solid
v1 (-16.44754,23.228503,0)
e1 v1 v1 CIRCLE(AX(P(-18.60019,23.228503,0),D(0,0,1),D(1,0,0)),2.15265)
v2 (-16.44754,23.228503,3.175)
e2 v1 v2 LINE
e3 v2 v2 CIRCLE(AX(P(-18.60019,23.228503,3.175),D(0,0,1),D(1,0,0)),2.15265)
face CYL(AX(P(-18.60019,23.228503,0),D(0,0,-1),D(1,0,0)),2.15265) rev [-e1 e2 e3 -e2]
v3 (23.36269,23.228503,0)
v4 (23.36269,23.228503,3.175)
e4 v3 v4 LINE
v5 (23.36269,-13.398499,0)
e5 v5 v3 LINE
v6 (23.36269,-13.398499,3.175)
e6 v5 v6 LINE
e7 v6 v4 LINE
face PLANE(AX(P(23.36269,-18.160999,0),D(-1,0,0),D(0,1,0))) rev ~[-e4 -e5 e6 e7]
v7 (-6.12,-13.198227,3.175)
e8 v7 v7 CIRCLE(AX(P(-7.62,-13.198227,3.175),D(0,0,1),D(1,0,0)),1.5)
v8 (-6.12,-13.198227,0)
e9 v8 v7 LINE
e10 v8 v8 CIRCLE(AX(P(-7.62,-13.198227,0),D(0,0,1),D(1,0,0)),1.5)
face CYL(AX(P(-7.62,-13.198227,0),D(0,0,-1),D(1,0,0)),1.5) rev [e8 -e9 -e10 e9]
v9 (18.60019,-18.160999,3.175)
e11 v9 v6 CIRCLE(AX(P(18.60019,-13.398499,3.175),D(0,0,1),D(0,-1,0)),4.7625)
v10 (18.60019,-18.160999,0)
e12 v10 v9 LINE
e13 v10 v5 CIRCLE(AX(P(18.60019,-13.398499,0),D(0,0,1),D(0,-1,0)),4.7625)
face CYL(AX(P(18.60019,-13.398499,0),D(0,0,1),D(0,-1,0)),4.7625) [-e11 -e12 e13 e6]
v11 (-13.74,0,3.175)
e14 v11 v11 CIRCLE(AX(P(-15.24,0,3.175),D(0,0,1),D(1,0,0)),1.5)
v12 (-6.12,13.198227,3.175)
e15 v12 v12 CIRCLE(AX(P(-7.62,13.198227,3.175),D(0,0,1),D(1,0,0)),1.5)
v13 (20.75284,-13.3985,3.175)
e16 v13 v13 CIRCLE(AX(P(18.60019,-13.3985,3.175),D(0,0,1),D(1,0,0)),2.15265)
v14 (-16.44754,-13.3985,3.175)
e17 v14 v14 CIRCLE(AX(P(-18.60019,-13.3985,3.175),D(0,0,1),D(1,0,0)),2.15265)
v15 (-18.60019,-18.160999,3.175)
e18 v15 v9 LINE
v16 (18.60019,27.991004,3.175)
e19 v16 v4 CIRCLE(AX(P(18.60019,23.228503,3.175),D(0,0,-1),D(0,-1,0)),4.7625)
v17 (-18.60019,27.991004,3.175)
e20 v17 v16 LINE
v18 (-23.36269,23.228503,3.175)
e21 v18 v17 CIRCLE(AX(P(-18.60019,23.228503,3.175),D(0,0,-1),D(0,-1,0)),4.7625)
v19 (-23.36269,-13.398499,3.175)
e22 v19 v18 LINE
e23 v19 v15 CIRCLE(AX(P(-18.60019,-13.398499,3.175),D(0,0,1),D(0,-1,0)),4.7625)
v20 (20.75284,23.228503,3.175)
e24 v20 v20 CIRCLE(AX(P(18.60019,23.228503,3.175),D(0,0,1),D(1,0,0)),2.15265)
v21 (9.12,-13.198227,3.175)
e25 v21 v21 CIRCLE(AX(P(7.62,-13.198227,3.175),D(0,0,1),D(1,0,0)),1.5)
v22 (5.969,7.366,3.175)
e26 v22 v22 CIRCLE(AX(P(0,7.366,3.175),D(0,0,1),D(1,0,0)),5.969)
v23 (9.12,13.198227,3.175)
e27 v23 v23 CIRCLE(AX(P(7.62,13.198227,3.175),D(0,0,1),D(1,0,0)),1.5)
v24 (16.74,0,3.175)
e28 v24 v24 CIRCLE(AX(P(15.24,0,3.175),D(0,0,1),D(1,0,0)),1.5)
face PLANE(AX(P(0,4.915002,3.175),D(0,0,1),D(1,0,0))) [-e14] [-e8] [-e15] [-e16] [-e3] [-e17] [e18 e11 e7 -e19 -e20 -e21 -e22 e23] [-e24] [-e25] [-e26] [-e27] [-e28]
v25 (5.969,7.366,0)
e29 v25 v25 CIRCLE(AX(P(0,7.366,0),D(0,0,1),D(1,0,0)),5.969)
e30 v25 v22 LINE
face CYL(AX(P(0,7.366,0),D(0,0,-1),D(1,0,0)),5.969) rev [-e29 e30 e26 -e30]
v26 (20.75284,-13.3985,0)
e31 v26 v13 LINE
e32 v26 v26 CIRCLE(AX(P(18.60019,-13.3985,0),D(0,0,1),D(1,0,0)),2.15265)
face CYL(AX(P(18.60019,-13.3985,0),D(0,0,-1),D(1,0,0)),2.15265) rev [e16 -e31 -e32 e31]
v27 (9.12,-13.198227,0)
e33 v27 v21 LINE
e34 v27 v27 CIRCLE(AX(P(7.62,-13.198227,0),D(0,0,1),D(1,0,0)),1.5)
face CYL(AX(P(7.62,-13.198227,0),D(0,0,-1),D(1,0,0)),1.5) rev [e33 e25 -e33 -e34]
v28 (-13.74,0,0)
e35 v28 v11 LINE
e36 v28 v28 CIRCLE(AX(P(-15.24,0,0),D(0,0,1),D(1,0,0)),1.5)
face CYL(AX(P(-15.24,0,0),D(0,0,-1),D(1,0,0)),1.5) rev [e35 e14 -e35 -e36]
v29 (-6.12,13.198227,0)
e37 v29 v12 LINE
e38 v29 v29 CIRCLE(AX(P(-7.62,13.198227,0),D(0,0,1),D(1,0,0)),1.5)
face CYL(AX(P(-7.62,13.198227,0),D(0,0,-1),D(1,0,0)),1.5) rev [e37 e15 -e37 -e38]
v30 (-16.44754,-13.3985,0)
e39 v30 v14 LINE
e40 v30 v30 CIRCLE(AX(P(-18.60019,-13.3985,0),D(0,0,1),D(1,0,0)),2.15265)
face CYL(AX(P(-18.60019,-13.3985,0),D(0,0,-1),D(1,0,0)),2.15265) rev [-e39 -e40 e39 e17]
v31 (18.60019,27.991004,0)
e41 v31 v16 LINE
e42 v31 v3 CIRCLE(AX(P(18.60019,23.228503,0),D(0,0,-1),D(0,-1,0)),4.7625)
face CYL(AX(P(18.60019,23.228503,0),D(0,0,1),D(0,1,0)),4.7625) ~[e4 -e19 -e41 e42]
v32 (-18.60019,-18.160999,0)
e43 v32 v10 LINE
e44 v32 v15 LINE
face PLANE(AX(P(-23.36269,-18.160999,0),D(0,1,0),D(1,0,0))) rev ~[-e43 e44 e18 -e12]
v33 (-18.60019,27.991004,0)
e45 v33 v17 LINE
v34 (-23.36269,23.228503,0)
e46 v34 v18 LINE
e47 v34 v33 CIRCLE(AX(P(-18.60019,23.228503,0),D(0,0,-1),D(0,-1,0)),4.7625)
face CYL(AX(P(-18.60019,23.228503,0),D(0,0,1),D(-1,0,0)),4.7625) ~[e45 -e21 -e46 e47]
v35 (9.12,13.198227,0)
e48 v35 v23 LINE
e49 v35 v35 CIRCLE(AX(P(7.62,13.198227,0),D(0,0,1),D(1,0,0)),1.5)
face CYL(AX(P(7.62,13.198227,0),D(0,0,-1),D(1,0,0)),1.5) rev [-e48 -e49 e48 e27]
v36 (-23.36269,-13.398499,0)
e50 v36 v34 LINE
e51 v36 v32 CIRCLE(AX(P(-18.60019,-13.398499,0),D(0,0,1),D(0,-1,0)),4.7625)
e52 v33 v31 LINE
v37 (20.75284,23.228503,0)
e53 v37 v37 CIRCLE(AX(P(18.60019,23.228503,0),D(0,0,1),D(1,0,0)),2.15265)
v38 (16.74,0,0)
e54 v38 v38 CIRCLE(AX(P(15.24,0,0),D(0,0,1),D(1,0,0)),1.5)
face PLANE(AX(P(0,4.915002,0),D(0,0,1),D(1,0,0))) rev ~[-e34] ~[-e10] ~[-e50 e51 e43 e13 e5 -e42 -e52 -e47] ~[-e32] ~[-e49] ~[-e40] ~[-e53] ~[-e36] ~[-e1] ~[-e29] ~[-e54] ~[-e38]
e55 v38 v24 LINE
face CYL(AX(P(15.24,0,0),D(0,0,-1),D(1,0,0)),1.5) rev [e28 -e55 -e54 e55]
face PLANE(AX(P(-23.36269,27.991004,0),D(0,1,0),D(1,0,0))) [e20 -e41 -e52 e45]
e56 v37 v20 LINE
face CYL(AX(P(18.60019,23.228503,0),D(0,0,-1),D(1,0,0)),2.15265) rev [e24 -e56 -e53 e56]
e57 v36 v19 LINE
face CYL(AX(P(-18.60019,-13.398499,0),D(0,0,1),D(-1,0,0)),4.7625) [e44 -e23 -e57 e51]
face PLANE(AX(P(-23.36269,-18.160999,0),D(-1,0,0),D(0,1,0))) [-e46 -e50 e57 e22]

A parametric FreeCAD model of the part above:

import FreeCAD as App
import Part
import Sketcher

V = App.Vector
Q = App.Units.Quantity


def edges_at(feature, points):
    """Names of the edges that pass closest to the given points."""
    edges = feature.Shape.Edges
    near = lambda p: min(range(len(edges)), key=lambda i: edges[i].distToShape(Part.Vertex(*p))[0])
    return sorted({f"Edge{near(p) + 1}" for p in points})

doc = App.newDocument("Part")
params = doc.addObject("Spreadsheet::Sheet", "Params")
for row, (alias, value) in enumerate([
    ("sketch1_diameter", "0.47 in"),
    ("pad1_length", "0.125 in"),
    ("fillet_radius", "0.1875 in"),
], start=1):
    params.set(f"A{row}", alias)
    params.set(f"B{row}", "=" + value)
    params.setAlias(f"B{row}", alias)

body = doc.addObject("PartDesign::Body", "Body")

sketch1 = body.newObject("Sketcher::SketchObject", "Sketch")
sketch1.AttachmentSupport = (doc.getObject("XY_Plane"), [""])
sketch1.MapMode = "FlatFace"
sketch1.addGeometry([
    Part.LineSegment(V(-23.4, 28, 0), V(-23.4, -18.2, 0)),
    Part.LineSegment(V(-23.4, -18.2, 0), V(23.4, -18.2, 0)),
    Part.LineSegment(V(23.4, -18.2, 0), V(23.4, 28, 0)),
    Part.LineSegment(V(23.4, 28, 0), V(-23.4, 28, 0)),
    Part.Circle(V(-18.6, -13.4, 0), V(0, 0, 1), 2.2),
    Part.Circle(V(-7.6, -13.2, 0), V(0, 0, 1), 1.5),
    Part.Circle(V(-15.2, 0, 0), V(0, 0, 1), 1.5),
    Part.Circle(V(7.6, -13.2, 0), V(0, 0, 1), 1.5),
    Part.Circle(V(18.6, -13.4, 0), V(0, 0, 1), 2.2),
    Part.Circle(V(15.2, 0, 0), V(0, 0, 1), 1.5),
    Part.Circle(V(-7.6, 13.2, 0), V(0, 0, 1), 1.5),
    Part.Circle(V(-18.6, 23.2, 0), V(0, 0, 1), 2.2),
    Part.Circle(V(0, 7.4, 0), V(0, 0, 1), 6),
    Part.Circle(V(7.6, 13.2, 0), V(0, 0, 1), 1.5),
    Part.Circle(V(18.6, 23.2, 0), V(0, 0, 1), 2.2),
], False)
sketch1.addConstraint([
    Sketcher.Constraint("Coincident", 0, 2, 1, 1),
    Sketcher.Constraint("Coincident", 1, 2, 2, 1),
    Sketcher.Constraint("Coincident", 2, 2, 3, 1),
    Sketcher.Constraint("Coincident", 3, 2, 0, 1),
    Sketcher.Constraint("Vertical", 0),
    Sketcher.Constraint("Horizontal", 1),
    Sketcher.Constraint("Vertical", 2),
    Sketcher.Constraint("Horizontal", 3),
    Sketcher.Constraint("Equal", 5, 6),
    Sketcher.Constraint("Equal", 6, 7),
    Sketcher.Constraint("Equal", 4, 8),
    Sketcher.Constraint("Equal", 7, 9),
    Sketcher.Constraint("Equal", 9, 10),
    Sketcher.Constraint("Equal", 8, 11),
    Sketcher.Constraint("Equal", 10, 13),
    Sketcher.Constraint("Equal", 11, 14),
    Sketcher.Constraint("Symmetric", 6, 3, 9, 3, -1, 1),
    Sketcher.Constraint("Symmetric", 7, 3, 10, 3, -1, 1),
    Sketcher.Constraint("Symmetric", 5, 3, 13, 3, -1, 1),
    Sketcher.Constraint("Symmetric", 5, 3, 7, 3, -2),
    Sketcher.Constraint("Symmetric", 4, 3, 8, 3, -2),
    Sketcher.Constraint("Symmetric", 11, 3, 14, 3, -2),
    Sketcher.Constraint("PointOnObject", 6, 3, -1),
    Sketcher.Constraint("PointOnObject", 12, 3, -2),
    Sketcher.Constraint("Vertical", 4, 3, 11, 3),
    Sketcher.Constraint("Diameter", 12, Q("0.47 in")),
    Sketcher.Constraint("Diameter", 4, Q("0.1695 in")),
    Sketcher.Constraint("DistanceX", 5, 3, -1, 1, Q("0.3 in")),
    Sketcher.Constraint("DistanceX", 6, 3, -1, 1, Q("0.6 in")),
    Sketcher.Constraint("Diameter", 5, Q("3 mm")),
    Sketcher.Constraint("DistanceY", -1, 1, 12, 3, Q("0.29 in")),
    Sketcher.Constraint("DistanceY", 0, 2, -1, 1, Q("0.715 in")),
    Sketcher.Constraint("DistanceX", 0, 2, 4, 3, Q("0.1875 in")),
    Sketcher.Constraint("DistanceY", 0, 2, 4, 3, Q("0.1875 in")),
    Sketcher.Constraint("DistanceX", 8, 3, 1, 2, Q("0.1875 in")),
    Sketcher.Constraint("DistanceY", 14, 3, 2, 2, Q("0.1875 in")),
    Sketcher.Constraint("DistanceX", 1, 1, 1, 2, Q("46.72538 mm")),
    Sketcher.Constraint("DistanceY", 0, 2, 0, 1, Q("46.152003 mm")),
    Sketcher.Constraint("DistanceY", 5, 3, 11, 3, Q("36.42673 mm")),
])
sketch1.setExpression("Constraints[25]", "Params.sketch1_diameter")
pad1 = body.newObject("PartDesign::Pad", "Pad")
pad1.Profile = sketch1
pad1.setExpression("Length", "Params.pad1_length")
doc.recompute()

fillet = body.newObject("PartDesign::Fillet", "Fillet")
fillet.Base = (pad1, edges_at(pad1, [
    (-23.363, -18.161, 1.587),
    (23.363, -18.161, 1.587),
    (23.363, 27.991, 1.587),
    (-23.363, 27.991, 1.587),
]))
fillet.setExpression("Radius", "Params.fillet_radius")

doc.recompute()
